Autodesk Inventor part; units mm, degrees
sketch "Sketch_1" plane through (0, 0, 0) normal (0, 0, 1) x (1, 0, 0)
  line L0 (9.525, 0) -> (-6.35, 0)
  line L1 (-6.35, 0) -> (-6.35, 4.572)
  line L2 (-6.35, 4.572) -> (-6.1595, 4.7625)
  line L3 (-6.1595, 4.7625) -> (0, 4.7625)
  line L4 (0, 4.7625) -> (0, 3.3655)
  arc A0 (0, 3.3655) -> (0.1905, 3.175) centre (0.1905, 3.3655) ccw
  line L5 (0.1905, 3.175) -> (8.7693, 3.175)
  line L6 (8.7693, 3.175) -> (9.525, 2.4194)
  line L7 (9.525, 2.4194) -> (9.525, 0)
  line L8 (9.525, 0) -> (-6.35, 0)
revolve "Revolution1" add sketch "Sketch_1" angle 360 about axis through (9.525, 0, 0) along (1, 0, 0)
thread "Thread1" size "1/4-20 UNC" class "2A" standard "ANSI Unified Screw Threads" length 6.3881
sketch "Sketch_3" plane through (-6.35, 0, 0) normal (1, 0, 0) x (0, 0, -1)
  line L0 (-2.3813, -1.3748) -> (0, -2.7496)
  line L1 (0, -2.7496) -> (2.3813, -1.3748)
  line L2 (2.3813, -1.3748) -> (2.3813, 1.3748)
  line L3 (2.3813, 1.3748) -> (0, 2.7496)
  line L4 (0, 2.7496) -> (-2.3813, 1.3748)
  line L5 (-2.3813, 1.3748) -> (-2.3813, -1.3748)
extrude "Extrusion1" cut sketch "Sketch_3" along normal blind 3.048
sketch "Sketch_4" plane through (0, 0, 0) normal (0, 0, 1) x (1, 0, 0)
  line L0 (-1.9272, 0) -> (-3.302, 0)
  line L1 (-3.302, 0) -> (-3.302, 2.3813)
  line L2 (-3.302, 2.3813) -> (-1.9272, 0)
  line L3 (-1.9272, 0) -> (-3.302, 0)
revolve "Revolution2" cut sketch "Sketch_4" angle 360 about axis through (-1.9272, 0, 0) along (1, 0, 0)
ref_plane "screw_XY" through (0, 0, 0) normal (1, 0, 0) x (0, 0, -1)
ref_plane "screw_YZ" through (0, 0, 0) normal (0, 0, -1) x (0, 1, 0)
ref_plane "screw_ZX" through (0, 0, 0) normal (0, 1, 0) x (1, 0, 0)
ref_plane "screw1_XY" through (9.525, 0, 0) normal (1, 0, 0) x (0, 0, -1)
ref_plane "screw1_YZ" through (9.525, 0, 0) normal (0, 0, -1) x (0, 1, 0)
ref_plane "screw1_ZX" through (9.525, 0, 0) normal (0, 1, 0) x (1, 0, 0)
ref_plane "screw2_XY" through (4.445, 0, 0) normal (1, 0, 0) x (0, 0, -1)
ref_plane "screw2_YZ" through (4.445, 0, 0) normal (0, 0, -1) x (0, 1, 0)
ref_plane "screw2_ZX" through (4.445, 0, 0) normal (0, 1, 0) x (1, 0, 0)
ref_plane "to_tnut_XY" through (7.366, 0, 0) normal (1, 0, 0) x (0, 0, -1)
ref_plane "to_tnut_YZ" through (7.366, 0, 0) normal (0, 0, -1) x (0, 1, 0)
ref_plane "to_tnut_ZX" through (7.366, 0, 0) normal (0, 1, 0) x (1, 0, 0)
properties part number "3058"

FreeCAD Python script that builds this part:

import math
import FreeCAD as App
import Part
import Sketcher
from FreeCAD import Vector
Q = App.Units.Quantity


def add_polygon(sketch, points):
    """Adds a closed chain of lines whose ends are joined by coincident constraints."""
    first, n = sketch.GeometryCount, len(points)
    for a, b in zip(points, points[1:] + points[:1]):
        sketch.addGeometry(Part.LineSegment(App.Vector(*a, 0), App.Vector(*b, 0)), False)
    for i in range(n):
        sketch.addConstraint(Sketcher.Constraint("Coincident", first + i, 2, first + (i + 1) % n, 1))

doc = App.newDocument("Part")
params = doc.addObject("Spreadsheet::Sheet", "Params")
for row, (alias, value) in enumerate([
    ("sketch1_height", "0.18 in"),
    ("sketch1_width", "0.625 in"),
    ("sketch1_height2", "0.055 in"),
    ("revolution_angle", "360 deg"),
    ("pocket1_length", "0.12 in"),
    ("sketch3_height", "0.093752 in"),
    ("groove_angle", "360 deg"),
], start=1):
    params.set(f"A{row}", alias)
    params.set(f"B{row}", "=" + value)
    params.setAlias(f"B{row}", alias)

body = doc.addObject("PartDesign::Body", "Body")

sketch1 = body.newObject("Sketcher::SketchObject", "Sketch")
sketch1.AttachmentSupport = (doc.getObject("XY_Plane"), [""])
sketch1.MapMode = "FlatFace"
sketch1.addGeometry(Part.LineSegment(Vector(-6.35, 0, 0), Vector(9.53, 0, 0)), False)
sketch1.addGeometry(Part.LineSegment(Vector(9.53, 0, 0), Vector(9.53, 2.42, 0)), False)
sketch1.addGeometry(Part.LineSegment(Vector(9.53, 2.42, 0), Vector(8.77, 3.17, 0)), False)
sketch1.addGeometry(Part.LineSegment(Vector(8.77, 3.17, 0), Vector(0.19, 3.17, 0)), False)
sketch1.addGeometry(Part.ArcOfCircle(Part.Circle(Vector(0.19, 3.37, 0), Vector(0, 0, 1), 0.19), math.radians(180), math.radians(270)), False)
sketch1.addGeometry(Part.LineSegment(Vector(0, 3.37, 0), Vector(0, 4.76, 0)), False)
sketch1.addGeometry(Part.LineSegment(Vector(0, 4.76, 0), Vector(-6.16, 4.76, 0)), False)
sketch1.addGeometry(Part.LineSegment(Vector(-6.16, 4.76, 0), Vector(-6.35, 4.57, 0)), False)
sketch1.addGeometry(Part.LineSegment(Vector(-6.35, 4.57, 0), Vector(-6.35, 0, 0)), False)
sketch1.addConstraint(Sketcher.Constraint("Coincident", 0, 2, 1, 1))
sketch1.addConstraint(Sketcher.Constraint("Coincident", 1, 2, 2, 1))
sketch1.addConstraint(Sketcher.Constraint("Coincident", 2, 2, 3, 1))
sketch1.addConstraint(Sketcher.Constraint("Tangent", 3, 2, 4, 2))
sketch1.addConstraint(Sketcher.Constraint("Tangent", 4, 1, 5, 1))
sketch1.addConstraint(Sketcher.Constraint("Coincident", 5, 2, 6, 1))
sketch1.addConstraint(Sketcher.Constraint("Coincident", 6, 2, 7, 1))
sketch1.addConstraint(Sketcher.Constraint("Coincident", 7, 2, 8, 1))
sketch1.addConstraint(Sketcher.Constraint("Coincident", 8, 2, 0, 1))
sketch1.addConstraint(Sketcher.Constraint("Horizontal", 0))
sketch1.addConstraint(Sketcher.Constraint("Vertical", 1))
sketch1.addConstraint(Sketcher.Constraint("Horizontal", 3))
sketch1.addConstraint(Sketcher.Constraint("Vertical", 5))
sketch1.addConstraint(Sketcher.Constraint("Horizontal", 6))
sketch1.addConstraint(Sketcher.Constraint("Vertical", 8))
sketch1.addConstraint(Sketcher.Constraint("PointOnObject", 0, 2, -1))
sketch1.addConstraint(Sketcher.Constraint("PointOnObject", 4, 1, -2))
sketch1.addConstraint(Sketcher.Constraint("Perpendicular", 2, 7))
sketch1.addConstraint(Sketcher.Constraint("Angle", 7, Q("-135 deg")))
sketch1.addConstraint(Sketcher.Constraint("DistanceY", 8, 2, 8, 1, Q("0.18 in")))
sketch1.addConstraint(Sketcher.Constraint("Radius", 4, Q("0.0075 in")))
sketch1.addConstraint(Sketcher.Constraint("DistanceX", 0, 1, 0, 2, Q("0.625 in")))
sketch1.addConstraint(Sketcher.Constraint("DistanceY", 5, 1, 5, 2, Q("0.055 in")))
sketch1.addConstraint(Sketcher.Constraint("DistanceX", 7, 2, -1, 1, Q("0.25 in")))
sketch1.addConstraint(Sketcher.Constraint("DistanceX", 6, 2, 4, 3, Q("0.25 in")))
sketch1.addConstraint(Sketcher.Constraint("DistanceX", 3, 2, 3, 1, Q("8.5788 mm")))
sketch1.setExpression("Constraints[19]", "Params.sketch1_height")
sketch1.setExpression("Constraints[21]", "Params.sketch1_width")
sketch1.setExpression("Constraints[22]", "Params.sketch1_height2")
revolution = body.newObject("PartDesign::Revolution", "Revolution")
revolution.Profile = sketch1
revolution.ReferenceAxis = (sketch1, ["H_Axis"])
revolution.setExpression("Angle", "Params.revolution_angle")

sketch2 = body.newObject("Sketcher::SketchObject", "Sketch001")
sketch2.AttachmentSupport = (doc.getObject("YZ_Plane"), [""])
sketch2.MapMode = "FlatFace"
sketch2.AttachmentOffset = App.Placement(Vector(0, 0, -0.25 * 25.4), App.Rotation())
add_polygon(sketch2, [(1.4, 2.4), (-1.4, 2.4), (-2.7, 0), (-1.4, -2.4), (1.4, -2.4), (2.7, 0)])
sketch2.addConstraint(Sketcher.Constraint("Horizontal", 0))
sketch2.addConstraint(Sketcher.Constraint("Horizontal", 3))
sketch2.addConstraint(Sketcher.Constraint("Symmetric", 0, 2, 3, 2, -1, 1))
sketch2.addConstraint(Sketcher.Constraint("Symmetric", 1, 2, 4, 2, -1, 1))
sketch2.addConstraint(Sketcher.Constraint("PointOnObject", 1, 2, -1))
sketch2.addConstraint(Sketcher.Constraint("Parallel", 2, 5))
sketch2.addConstraint(Sketcher.Constraint("Vertical", 0, 2, 2, 2))
sketch2.addConstraint(Sketcher.Constraint("Angle", 1, Q("-119.9992 deg")))
sketch2.addConstraint(Sketcher.Constraint("DistanceY", -1, 1, 0, 2, Q("0.093752 in")))
sketch2.addConstraint(Sketcher.Constraint("DistanceX", 0, 2, 0, 1, Q("2.7496 mm")))
pocket1 = body.newObject("PartDesign::Pocket", "Pocket")
pocket1.Profile = sketch2
pocket1.setExpression("Length", "Params.pocket1_length")
pocket1.Reversed = True

sketch3 = body.newObject("Sketcher::SketchObject", "Sketch002")
sketch3.AttachmentSupport = (doc.getObject("XY_Plane"), [""])
sketch3.MapMode = "FlatFace"
add_polygon(sketch3, [(-3.3, 0), (-1.9, 0), (-3.3, 2.4)])
sketch3.addConstraint(Sketcher.Constraint("Horizontal", 0))
sketch3.addConstraint(Sketcher.Constraint("Vertical", 2))
sketch3.addConstraint(Sketcher.Constraint("PointOnObject", 0, 2, -1))
sketch3.addConstraint(Sketcher.Constraint("Angle", 1, Q("119.9992 deg")))
sketch3.addConstraint(Sketcher.Constraint("DistanceY", 2, 2, 2, 1, Q("0.093752 in")))
sketch3.addConstraint(Sketcher.Constraint("DistanceX", 1, 2, -1, 1, Q("0.13 in")))
sketch3.setExpression("Constraints[7]", "Params.sketch3_height")
groove = body.newObject("PartDesign::Groove", "Groove")
groove.Profile = sketch3
groove.ReferenceAxis = (sketch3, ["H_Axis"])
groove.setExpression("Angle", "Params.groove_angle")

doc.recompute()
